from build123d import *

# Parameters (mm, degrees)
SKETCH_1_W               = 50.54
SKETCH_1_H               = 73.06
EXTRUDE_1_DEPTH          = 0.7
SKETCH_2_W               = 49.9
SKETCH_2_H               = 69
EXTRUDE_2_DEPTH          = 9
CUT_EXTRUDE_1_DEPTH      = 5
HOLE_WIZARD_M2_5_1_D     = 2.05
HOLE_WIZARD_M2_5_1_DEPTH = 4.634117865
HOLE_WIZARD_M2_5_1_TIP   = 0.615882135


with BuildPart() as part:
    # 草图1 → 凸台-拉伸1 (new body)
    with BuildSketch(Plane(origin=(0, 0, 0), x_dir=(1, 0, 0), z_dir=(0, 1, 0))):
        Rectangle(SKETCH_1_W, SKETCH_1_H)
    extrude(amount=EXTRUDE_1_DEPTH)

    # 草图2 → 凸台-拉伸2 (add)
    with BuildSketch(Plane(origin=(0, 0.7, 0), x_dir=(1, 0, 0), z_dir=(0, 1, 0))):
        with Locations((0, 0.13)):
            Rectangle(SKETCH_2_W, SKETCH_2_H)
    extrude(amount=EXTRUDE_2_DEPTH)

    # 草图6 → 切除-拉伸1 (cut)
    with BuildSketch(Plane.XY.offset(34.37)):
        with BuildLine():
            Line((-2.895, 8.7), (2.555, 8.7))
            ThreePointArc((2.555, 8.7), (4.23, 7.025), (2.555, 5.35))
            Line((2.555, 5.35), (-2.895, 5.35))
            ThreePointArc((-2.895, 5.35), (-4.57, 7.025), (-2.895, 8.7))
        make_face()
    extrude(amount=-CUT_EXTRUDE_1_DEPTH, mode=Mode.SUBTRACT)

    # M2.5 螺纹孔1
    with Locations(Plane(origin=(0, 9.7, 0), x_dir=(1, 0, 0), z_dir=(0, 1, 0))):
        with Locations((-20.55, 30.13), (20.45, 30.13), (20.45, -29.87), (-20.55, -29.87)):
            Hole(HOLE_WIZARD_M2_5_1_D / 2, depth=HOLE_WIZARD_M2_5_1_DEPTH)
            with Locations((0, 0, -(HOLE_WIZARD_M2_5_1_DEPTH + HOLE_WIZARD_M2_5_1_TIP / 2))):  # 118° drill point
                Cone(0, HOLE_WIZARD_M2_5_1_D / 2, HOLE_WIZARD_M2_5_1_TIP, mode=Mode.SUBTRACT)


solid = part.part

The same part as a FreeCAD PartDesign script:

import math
import FreeCAD as App
import Part
import Sketcher
Q = App.Units.Quantity

doc = App.newDocument("Part")
params = doc.addObject("Spreadsheet::Sheet", "Params")
for row, (alias, value) in enumerate([
    ("sketch1_width", "50.54 mm"),
    ("sketch1_height", "73.06 mm"),
    ("pad1_length", "0.7 mm"),
    ("sketch2_height", "69 mm"),
    ("sketch2_width", "49.9 mm"),
    ("pad2_length", "9 mm"),
    ("sketch3_width", "5.45 mm"),
    ("pocket1_length", "5 mm"),
    ("sketch4_diameter", "2.05 mm"),
    ("hole_diameter", "2.05 mm"),
    ("hole_depth", "4.634118 mm"),
], start=1):
    params.set(f"A{row}", alias)
    params.set(f"B{row}", "=" + value)
    params.setAlias(f"B{row}", alias)

body = doc.addObject("PartDesign::Body", "Body")

# Sketch on XZ plane
sketch1 = body.newObject("Sketcher::SketchObject", "Sketch")
sketch1.AttachmentSupport = (doc.getObject("XZ_Plane"), [""])
sketch1.MapMode = "FlatFace"
sketch1.addGeometry(Part.LineSegment(App.Vector(-25, -37, 0), App.Vector(-25, 37, 0)), False)
sketch1.addGeometry(Part.LineSegment(App.Vector(-25, 37, 0), App.Vector(25, 37, 0)), False)
sketch1.addGeometry(Part.LineSegment(App.Vector(25, 37, 0), App.Vector(25, -37, 0)), False)
sketch1.addGeometry(Part.LineSegment(App.Vector(25, -37, 0), App.Vector(-25, -37, 0)), False)
sketch1.addConstraint(Sketcher.Constraint("Coincident", 0, 2, 1, 1))
sketch1.addConstraint(Sketcher.Constraint("Coincident", 1, 2, 2, 1))
sketch1.addConstraint(Sketcher.Constraint("Coincident", 2, 2, 3, 1))
sketch1.addConstraint(Sketcher.Constraint("Coincident", 3, 2, 0, 1))
sketch1.addConstraint(Sketcher.Constraint("Vertical", 0))
sketch1.addConstraint(Sketcher.Constraint("Horizontal", 1))
sketch1.addConstraint(Sketcher.Constraint("Vertical", 2))
sketch1.addConstraint(Sketcher.Constraint("Horizontal", 3))
sketch1.addConstraint(Sketcher.Constraint("Symmetric", 0, 2, 2, 2, -1, 1))
sketch1.addConstraint(Sketcher.Constraint("DistanceX", 1, 1, 1, 2, Q("50.54 mm")))
sketch1.addConstraint(Sketcher.Constraint("DistanceY", 0, 1, 0, 2, Q("73.06 mm")))
sketch1.setExpression("Constraints[9]", "Params.sketch1_width")
sketch1.setExpression("Constraints[10]", "Params.sketch1_height")
pad1 = body.newObject("PartDesign::Pad", "Pad")
pad1.Profile = sketch1
pad1.setExpression("Length", "Params.pad1_length")
pad1.Reversed = True

# Sketch on XZ plane
sketch2 = body.newObject("Sketcher::SketchObject", "Sketch001")
sketch2.AttachmentSupport = (doc.getObject("XZ_Plane"), [""])
sketch2.MapMode = "FlatFace"
sketch2.AttachmentOffset = App.Placement(App.Vector(0, 0, -0.7), App.Rotation())
sketch2.addGeometry(Part.LineSegment(App.Vector(-25, -35, 0), App.Vector(-25, 34, 0)), False)
sketch2.addGeometry(Part.LineSegment(App.Vector(-25, 34, 0), App.Vector(25, 34, 0)), False)
sketch2.addGeometry(Part.LineSegment(App.Vector(25, 34, 0), App.Vector(25, -35, 0)), False)
sketch2.addGeometry(Part.LineSegment(App.Vector(25, -35, 0), App.Vector(-25, -35, 0)), False)
sketch2.addConstraint(Sketcher.Constraint("Coincident", 0, 2, 1, 1))
sketch2.addConstraint(Sketcher.Constraint("Coincident", 1, 2, 2, 1))
sketch2.addConstraint(Sketcher.Constraint("Coincident", 2, 2, 3, 1))
sketch2.addConstraint(Sketcher.Constraint("Coincident", 3, 2, 0, 1))
sketch2.addConstraint(Sketcher.Constraint("Vertical", 0))
sketch2.addConstraint(Sketcher.Constraint("Horizontal", 1))
sketch2.addConstraint(Sketcher.Constraint("Vertical", 2))
sketch2.addConstraint(Sketcher.Constraint("Horizontal", 3))
sketch2.addConstraint(Sketcher.Constraint("DistanceY", 0, 1, 0, 2, Q("69 mm")))
sketch2.addConstraint(Sketcher.Constraint("DistanceX", 1, 1, 1, 2, Q("49.9 mm")))
sketch2.addConstraint(Sketcher.Constraint("DistanceX", 0, 2, -1, 1, Q("24.95 mm")))
sketch2.addConstraint(Sketcher.Constraint("DistanceY", -1, 1, 0, 2, Q("34.37 mm")))
sketch2.setExpression("Constraints[8]", "Params.sketch2_height")
sketch2.setExpression("Constraints[9]", "Params.sketch2_width")
pad2 = body.newObject("PartDesign::Pad", "Pad001")
pad2.Profile = sketch2
pad2.setExpression("Length", "Params.pad2_length")
pad2.Reversed = True

# Sketch on XY plane
sketch3 = body.newObject("Sketcher::SketchObject", "Sketch002")
sketch3.AttachmentSupport = (doc.getObject("XY_Plane"), [""])
sketch3.MapMode = "FlatFace"
sketch3.AttachmentOffset = App.Placement(App.Vector(0, 0, 34.37), App.Rotation())
sketch3.addGeometry(Part.LineSegment(App.Vector(2.6, 8.7, 0), App.Vector(-2.9, 8.7, 0)), False)
sketch3.addGeometry(Part.ArcOfCircle(Part.Circle(App.Vector(-2.9, 7, 0), App.Vector(0, 0, 1), 1.7), math.radians(90), math.radians(270)), False)
sketch3.addGeometry(Part.LineSegment(App.Vector(-2.9, 5.3, 0), App.Vector(2.6, 5.3, 0)), False)
sketch3.addGeometry(Part.ArcOfCircle(Part.Circle(App.Vector(2.6, 7, 0), App.Vector(0, 0, 1), 1.7), math.radians(-90), math.radians(90)), False)
sketch3.addConstraint(Sketcher.Constraint("Tangent", 0, 2, 1, 1))
sketch3.addConstraint(Sketcher.Constraint("Tangent", 1, 2, 2, 1))
sketch3.addConstraint(Sketcher.Constraint("Tangent", 2, 2, 3, 1))
sketch3.addConstraint(Sketcher.Constraint("Tangent", 3, 2, 0, 1))
sketch3.addConstraint(Sketcher.Constraint("Horizontal", 0))
sketch3.addConstraint(Sketcher.Constraint("Horizontal", 2))
sketch3.addConstraint(Sketcher.Constraint("Radius", 1, Q("1.675 mm")))
sketch3.addConstraint(Sketcher.Constraint("DistanceX", 0, 2, 0, 1, Q("5.45 mm")))
sketch3.addConstraint(Sketcher.Constraint("DistanceY", -1, 1, 0, 2, Q("8.7 mm")))
sketch3.addConstraint(Sketcher.Constraint("DistanceX", 1, 3, -1, 1, Q("2.895 mm")))
sketch3.setExpression("Constraints[7]", "Params.sketch3_width")
pocket1 = body.newObject("PartDesign::Pocket", "Pocket")
pocket1.Profile = sketch3
pocket1.setExpression("Length", "Params.pocket1_length")

# Sketch on XZ plane
sketch4 = body.newObject("Sketcher::SketchObject", "Sketch003")
sketch4.AttachmentSupport = (doc.getObject("XZ_Plane"), [""])
sketch4.MapMode = "FlatFace"
sketch4.AttachmentOffset = App.Placement(App.Vector(0, 0, -9.7), App.Rotation())
sketch4.addGeometry(Part.Circle(App.Vector(-20.6, -30.1, 0), App.Vector(0, 0, 1), 1), False)
sketch4.addGeometry(Part.Circle(App.Vector(20.4, -30.1, 0), App.Vector(0, 0, 1), 1), False)
sketch4.addGeometry(Part.Circle(App.Vector(20.4, 29.9, 0), App.Vector(0, 0, 1), 1), False)
sketch4.addGeometry(Part.Circle(App.Vector(-20.6, 29.9, 0), App.Vector(0, 0, 1), 1), False)
sketch4.addConstraint(Sketcher.Constraint("Equal", 0, 1))
sketch4.addConstraint(Sketcher.Constraint("Equal", 1, 2))
sketch4.addConstraint(Sketcher.Constraint("Equal", 2, 3))
sketch4.addConstraint(Sketcher.Constraint("Horizontal", 0, 3, 1, 3))
sketch4.addConstraint(Sketcher.Constraint("Horizontal", 2, 3, 3, 3))
sketch4.addConstraint(Sketcher.Constraint("Vertical", 1, 3, 2, 3))
sketch4.addConstraint(Sketcher.Constraint("Vertical", 0, 3, 3, 3))
sketch4.addConstraint(Sketcher.Constraint("Diameter", 0, Q("2.05 mm")))
sketch4.addConstraint(Sketcher.Constraint("DistanceX", 0, 3, 1, 3, Q("41 mm")))
sketch4.addConstraint(Sketcher.Constraint("DistanceY", 1, 3, 2, 3, Q("60 mm")))
sketch4.addConstraint(Sketcher.Constraint("DistanceX", 0, 3, -1, 1, Q("20.55 mm")))
sketch4.addConstraint(Sketcher.Constraint("DistanceY", 0, 3, -1, 1, Q("30.13 mm")))
sketch4.setExpression("Constraints[7]", "Params.sketch4_diameter")
doc.recompute()
hole = body.newObject("PartDesign::Hole", "Hole")
hole.Profile = sketch4
hole.ThreadType = "None"
hole.setExpression("Diameter", "Params.hole_diameter")
hole.DepthType = "Dimension"
hole.setExpression("Depth", "Params.hole_depth")
hole.DrillPoint = "Angled"
hole.DrillPointAngle = 118
hole.Reversed = True

doc.recompute()
